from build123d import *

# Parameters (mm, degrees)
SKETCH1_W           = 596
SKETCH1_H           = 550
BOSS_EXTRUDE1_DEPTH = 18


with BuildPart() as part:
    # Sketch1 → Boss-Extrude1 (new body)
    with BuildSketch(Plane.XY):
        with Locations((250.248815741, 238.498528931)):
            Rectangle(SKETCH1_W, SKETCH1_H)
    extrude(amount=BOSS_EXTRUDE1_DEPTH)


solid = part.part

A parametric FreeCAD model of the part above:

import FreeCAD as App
import Part
import Sketcher
Q = App.Units.Quantity


def add_polygon(sketch, points):
    """Adds a closed chain of lines whose ends are joined by coincident constraints."""
    first, n = sketch.GeometryCount, len(points)
    for a, b in zip(points, points[1:] + points[:1]):
        sketch.addGeometry(Part.LineSegment(App.Vector(*a, 0), App.Vector(*b, 0)), False)
    for i in range(n):
        sketch.addConstraint(Sketcher.Constraint("Coincident", first + i, 2, first + (i + 1) % n, 1))

doc = App.newDocument("Part")
params = doc.addObject("Spreadsheet::Sheet", "Params")
for row, (alias, value) in enumerate([
    ("sketch1_width", "596 mm"),
    ("sketch1_height", "550 mm"),
    ("pad1_length", "18 mm"),
], start=1):
    params.set(f"A{row}", alias)
    params.set(f"B{row}", "=" + value)
    params.setAlias(f"B{row}", alias)

body = doc.addObject("PartDesign::Body", "Body")

# Sketch on XY plane
sketch1 = body.newObject("Sketcher::SketchObject", "Sketch")
sketch1.AttachmentSupport = (doc.getObject("XY_Plane"), [""])
sketch1.MapMode = "FlatFace"
add_polygon(sketch1, [(-47.751184, 513.498529), (-47.751184, -36.501471), (548.248816, -36.501471), (548.248816, 513.498529)])  # lines 0-3
sketch1.addConstraint([
    Sketcher.Constraint("Vertical", 0),
    Sketcher.Constraint("Horizontal", 1),
    Sketcher.Constraint("Vertical", 2),
    Sketcher.Constraint("Horizontal", 3),
    Sketcher.Constraint("DistanceX", 1, 1, 1, 2, Q("596 mm")),
    Sketcher.Constraint("DistanceY", 0, 2, 0, 1, Q("550 mm")),
    Sketcher.Constraint("DistanceY", 0, 2, -1, 1, Q("36.501471 mm")),
    Sketcher.Constraint("DistanceX", 0, 2, -1, 1, Q("47.751184 mm")),
])
sketch1.setExpression("Constraints[8]", "Params.sketch1_width")
sketch1.setExpression("Constraints[9]", "Params.sketch1_height")
pad1 = body.newObject("PartDesign::Pad", "Pad")
pad1.Profile = sketch1
pad1.setExpression("Length", "Params.pad1_length")

doc.recompute()
